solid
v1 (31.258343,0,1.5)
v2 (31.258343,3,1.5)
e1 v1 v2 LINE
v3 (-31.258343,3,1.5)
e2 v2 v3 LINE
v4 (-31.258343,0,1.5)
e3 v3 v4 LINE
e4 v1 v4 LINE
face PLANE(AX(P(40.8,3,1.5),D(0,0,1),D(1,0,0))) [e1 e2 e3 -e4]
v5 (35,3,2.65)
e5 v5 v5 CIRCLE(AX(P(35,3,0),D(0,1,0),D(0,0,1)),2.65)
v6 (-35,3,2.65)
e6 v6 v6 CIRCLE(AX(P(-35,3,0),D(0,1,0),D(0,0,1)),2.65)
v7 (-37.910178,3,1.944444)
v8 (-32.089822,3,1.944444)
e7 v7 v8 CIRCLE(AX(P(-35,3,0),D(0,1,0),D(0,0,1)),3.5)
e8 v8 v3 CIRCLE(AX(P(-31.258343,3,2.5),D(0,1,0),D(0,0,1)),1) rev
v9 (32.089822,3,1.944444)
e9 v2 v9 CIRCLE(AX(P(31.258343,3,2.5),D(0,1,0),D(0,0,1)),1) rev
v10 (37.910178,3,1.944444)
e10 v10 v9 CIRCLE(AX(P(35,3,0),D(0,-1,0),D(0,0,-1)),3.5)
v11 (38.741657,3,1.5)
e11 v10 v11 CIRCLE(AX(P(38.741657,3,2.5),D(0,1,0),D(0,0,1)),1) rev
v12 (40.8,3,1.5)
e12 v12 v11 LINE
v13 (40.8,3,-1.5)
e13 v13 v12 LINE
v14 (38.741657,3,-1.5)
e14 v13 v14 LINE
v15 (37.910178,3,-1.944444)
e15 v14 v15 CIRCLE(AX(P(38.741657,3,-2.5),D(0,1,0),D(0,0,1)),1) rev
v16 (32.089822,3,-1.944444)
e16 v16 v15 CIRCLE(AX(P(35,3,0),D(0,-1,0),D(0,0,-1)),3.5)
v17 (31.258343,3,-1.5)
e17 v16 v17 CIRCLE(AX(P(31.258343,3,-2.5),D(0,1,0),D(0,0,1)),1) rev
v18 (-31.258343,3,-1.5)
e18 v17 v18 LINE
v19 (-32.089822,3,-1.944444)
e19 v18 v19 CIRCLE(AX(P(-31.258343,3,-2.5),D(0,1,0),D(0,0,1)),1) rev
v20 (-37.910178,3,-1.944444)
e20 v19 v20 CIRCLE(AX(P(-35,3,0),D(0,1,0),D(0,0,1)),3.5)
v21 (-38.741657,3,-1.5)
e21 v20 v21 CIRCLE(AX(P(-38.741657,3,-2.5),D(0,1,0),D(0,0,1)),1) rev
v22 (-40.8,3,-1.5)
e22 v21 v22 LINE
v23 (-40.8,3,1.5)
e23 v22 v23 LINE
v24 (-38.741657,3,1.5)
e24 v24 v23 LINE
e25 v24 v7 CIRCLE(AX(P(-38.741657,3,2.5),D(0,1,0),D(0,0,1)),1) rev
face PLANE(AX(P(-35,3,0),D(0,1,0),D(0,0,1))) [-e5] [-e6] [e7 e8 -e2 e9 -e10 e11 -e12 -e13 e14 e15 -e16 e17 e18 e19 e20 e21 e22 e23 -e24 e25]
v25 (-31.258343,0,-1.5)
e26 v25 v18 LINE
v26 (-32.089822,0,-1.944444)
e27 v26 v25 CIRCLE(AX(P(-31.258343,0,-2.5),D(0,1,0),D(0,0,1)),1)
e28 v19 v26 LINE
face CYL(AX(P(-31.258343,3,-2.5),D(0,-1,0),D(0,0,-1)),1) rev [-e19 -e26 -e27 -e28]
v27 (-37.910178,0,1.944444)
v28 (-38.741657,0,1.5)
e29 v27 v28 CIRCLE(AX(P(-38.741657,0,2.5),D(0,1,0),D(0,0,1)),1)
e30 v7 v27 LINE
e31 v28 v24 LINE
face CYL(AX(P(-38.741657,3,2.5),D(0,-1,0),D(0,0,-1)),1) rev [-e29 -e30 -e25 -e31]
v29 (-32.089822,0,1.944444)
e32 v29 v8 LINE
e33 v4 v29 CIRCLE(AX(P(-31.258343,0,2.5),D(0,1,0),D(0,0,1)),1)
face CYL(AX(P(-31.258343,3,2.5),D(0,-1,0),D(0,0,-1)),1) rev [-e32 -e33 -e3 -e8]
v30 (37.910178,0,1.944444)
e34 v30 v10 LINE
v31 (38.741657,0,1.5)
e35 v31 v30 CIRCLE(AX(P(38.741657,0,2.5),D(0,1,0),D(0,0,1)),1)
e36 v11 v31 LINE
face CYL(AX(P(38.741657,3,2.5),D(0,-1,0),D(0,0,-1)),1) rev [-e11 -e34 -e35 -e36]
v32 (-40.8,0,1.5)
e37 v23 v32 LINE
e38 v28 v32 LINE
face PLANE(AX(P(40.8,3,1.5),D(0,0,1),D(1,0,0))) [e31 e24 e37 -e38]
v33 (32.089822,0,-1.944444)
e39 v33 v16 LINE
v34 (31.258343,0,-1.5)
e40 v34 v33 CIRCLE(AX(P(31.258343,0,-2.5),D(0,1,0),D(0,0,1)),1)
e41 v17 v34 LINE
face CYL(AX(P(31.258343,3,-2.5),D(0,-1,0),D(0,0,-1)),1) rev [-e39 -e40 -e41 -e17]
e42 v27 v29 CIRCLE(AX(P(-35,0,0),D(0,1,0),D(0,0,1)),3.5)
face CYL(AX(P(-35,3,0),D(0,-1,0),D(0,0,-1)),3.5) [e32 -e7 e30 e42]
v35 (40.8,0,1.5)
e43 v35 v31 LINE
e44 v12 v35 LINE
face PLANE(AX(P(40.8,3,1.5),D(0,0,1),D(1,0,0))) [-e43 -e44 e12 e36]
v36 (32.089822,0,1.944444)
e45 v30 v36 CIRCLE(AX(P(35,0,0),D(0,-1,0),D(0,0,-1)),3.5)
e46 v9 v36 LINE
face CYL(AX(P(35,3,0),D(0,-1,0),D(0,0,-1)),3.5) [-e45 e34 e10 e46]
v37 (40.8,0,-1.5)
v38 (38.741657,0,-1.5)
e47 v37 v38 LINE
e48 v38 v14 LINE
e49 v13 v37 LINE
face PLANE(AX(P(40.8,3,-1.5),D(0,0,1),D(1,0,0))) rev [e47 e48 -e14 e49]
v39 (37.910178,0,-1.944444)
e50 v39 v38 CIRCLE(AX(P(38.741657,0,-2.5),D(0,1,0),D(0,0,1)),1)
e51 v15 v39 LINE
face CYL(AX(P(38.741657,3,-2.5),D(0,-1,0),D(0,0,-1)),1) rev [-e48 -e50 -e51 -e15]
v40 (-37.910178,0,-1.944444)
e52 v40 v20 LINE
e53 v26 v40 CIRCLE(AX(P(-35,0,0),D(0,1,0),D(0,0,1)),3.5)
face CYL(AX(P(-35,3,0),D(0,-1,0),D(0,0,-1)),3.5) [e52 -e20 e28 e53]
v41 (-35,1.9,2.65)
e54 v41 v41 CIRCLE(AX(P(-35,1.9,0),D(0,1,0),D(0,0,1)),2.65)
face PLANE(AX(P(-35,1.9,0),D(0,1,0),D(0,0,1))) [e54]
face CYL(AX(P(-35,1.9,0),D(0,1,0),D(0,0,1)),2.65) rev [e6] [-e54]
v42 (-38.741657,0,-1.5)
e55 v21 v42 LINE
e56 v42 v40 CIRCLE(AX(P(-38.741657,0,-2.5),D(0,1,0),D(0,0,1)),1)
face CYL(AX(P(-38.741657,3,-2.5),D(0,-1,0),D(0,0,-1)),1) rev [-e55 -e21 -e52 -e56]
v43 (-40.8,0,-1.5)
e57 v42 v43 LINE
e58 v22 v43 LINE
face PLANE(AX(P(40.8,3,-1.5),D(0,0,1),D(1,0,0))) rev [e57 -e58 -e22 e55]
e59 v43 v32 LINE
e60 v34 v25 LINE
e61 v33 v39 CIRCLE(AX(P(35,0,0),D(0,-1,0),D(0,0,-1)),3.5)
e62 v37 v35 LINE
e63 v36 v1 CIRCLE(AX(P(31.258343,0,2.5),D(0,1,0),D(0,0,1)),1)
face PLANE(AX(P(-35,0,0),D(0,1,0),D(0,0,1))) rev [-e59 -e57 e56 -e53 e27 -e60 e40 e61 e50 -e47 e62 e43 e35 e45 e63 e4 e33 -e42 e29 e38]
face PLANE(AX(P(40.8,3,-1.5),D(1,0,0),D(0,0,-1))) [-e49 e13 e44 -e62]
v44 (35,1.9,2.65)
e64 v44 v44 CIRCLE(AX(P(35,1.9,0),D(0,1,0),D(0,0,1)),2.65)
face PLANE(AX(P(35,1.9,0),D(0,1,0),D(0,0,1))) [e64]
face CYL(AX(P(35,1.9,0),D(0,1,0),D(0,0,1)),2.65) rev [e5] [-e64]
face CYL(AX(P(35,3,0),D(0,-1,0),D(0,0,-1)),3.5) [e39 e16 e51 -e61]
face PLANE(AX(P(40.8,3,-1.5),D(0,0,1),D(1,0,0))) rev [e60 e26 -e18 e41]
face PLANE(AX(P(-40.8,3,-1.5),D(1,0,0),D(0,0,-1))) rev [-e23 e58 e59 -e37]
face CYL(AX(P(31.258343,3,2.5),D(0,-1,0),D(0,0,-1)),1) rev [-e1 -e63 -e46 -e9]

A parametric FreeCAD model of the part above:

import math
import FreeCAD as App
import Part
import Sketcher

V = App.Vector
Q = App.Units.Quantity


def edges_at(feature, points):
    """Names of the edges that pass closest to the given points."""
    edges = feature.Shape.Edges
    near = lambda p: min(range(len(edges)), key=lambda i: edges[i].distToShape(Part.Vertex(*p))[0])
    return sorted({f"Edge{near(p) + 1}" for p in points})

doc = App.newDocument("Part")
body = doc.addObject("PartDesign::Body", "Body")

# Sketch on XZ plane
sketch1 = doc.addObject("Sketcher::SketchObject", "Sketch")
body.addObject(sketch1)
sketch1.AttachmentSupport = (doc.XZ_Plane, [""])
sketch1.MapMode = "FlatFace"
sketch1.addGeometry(Part.LineSegment(V(-31.837722, 1.5, 0), V(31.837722, 1.5, 0)), False)
sketch1.addGeometry(Part.ArcOfCircle(Part.Circle(V(35, 0, 0), V(0, 0, 1), 3.5), math.radians(25.376934), math.radians(154.623066)), False)
sketch1.addGeometry(Part.LineSegment(V(38.162278, 1.5, 0), V(40.8, 1.5, 0)), False)
sketch1.addGeometry(Part.LineSegment(V(40.8, 1.5, 0), V(40.8, -1.5, 0)), False)
sketch1.addGeometry(Part.LineSegment(V(40.8, -1.5, 0), V(38.162278, -1.5, 0)), False)
sketch1.addGeometry(Part.ArcOfCircle(Part.Circle(V(35, 0, 0), V(0, 0, 1), 3.5), math.radians(-154.623066), math.radians(-25.376934)), False)
sketch1.addGeometry(Part.LineSegment(V(31.837722, -1.5, 0), V(-31.837722, -1.5, 0)), False)
sketch1.addGeometry(Part.ArcOfCircle(Part.Circle(V(-35, 0, 0), V(0, 0, 1), 3.5), math.radians(-154.623066), math.radians(-25.376934)), False)
sketch1.addGeometry(Part.LineSegment(V(-38.162278, -1.5, 0), V(-40.8, -1.5, 0)), False)
sketch1.addGeometry(Part.LineSegment(V(-40.8, -1.5, 0), V(-40.8, 1.5, 0)), False)
sketch1.addGeometry(Part.LineSegment(V(-40.8, 1.5, 0), V(-38.162278, 1.5, 0)), False)
sketch1.addGeometry(Part.ArcOfCircle(Part.Circle(V(-35, 0, 0), V(0, 0, 1), 3.5), math.radians(25.376934), math.radians(154.623066)), False)
sketch1.addConstraint(Sketcher.Constraint("Coincident", 0, 2, 1, 2))
sketch1.addConstraint(Sketcher.Constraint("Coincident", 1, 1, 2, 1))
sketch1.addConstraint(Sketcher.Constraint("Coincident", 2, 2, 3, 1))
sketch1.addConstraint(Sketcher.Constraint("Coincident", 3, 2, 4, 1))
sketch1.addConstraint(Sketcher.Constraint("Coincident", 4, 2, 5, 2))
sketch1.addConstraint(Sketcher.Constraint("Coincident", 5, 1, 6, 1))
sketch1.addConstraint(Sketcher.Constraint("Coincident", 6, 2, 7, 2))
sketch1.addConstraint(Sketcher.Constraint("Coincident", 7, 1, 8, 1))
sketch1.addConstraint(Sketcher.Constraint("Coincident", 8, 2, 9, 1))
sketch1.addConstraint(Sketcher.Constraint("Coincident", 9, 2, 10, 1))
sketch1.addConstraint(Sketcher.Constraint("Coincident", 10, 2, 11, 2))
sketch1.addConstraint(Sketcher.Constraint("Coincident", 11, 1, 0, 1))
sketch1.addConstraint(Sketcher.Constraint("Horizontal", 0))
sketch1.addConstraint(Sketcher.Constraint("Horizontal", 2))
sketch1.addConstraint(Sketcher.Constraint("Vertical", 3))
sketch1.addConstraint(Sketcher.Constraint("Horizontal", 4))
sketch1.addConstraint(Sketcher.Constraint("Horizontal", 6))
sketch1.addConstraint(Sketcher.Constraint("Horizontal", 8))
sketch1.addConstraint(Sketcher.Constraint("Vertical", 9))
sketch1.addConstraint(Sketcher.Constraint("Horizontal", 10))
sketch1.addConstraint(Sketcher.Constraint("Coincident", 5, 3, 1, 3))
sketch1.addConstraint(Sketcher.Constraint("Coincident", 11, 3, 7, 3))
sketch1.addConstraint(Sketcher.Constraint("Equal", 1, 5))
sketch1.addConstraint(Sketcher.Constraint("Equal", 5, 7))
sketch1.addConstraint(Sketcher.Constraint("Equal", 7, 11))
sketch1.addConstraint(Sketcher.Constraint("Symmetric", 1, 3, 7, 3, -1, 1))
sketch1.addConstraint(Sketcher.Constraint("Symmetric", 2, 2, 8, 2, -1, 1))
sketch1.addConstraint(Sketcher.Constraint("Symmetric", 4, 2, 7, 1, -2))
sketch1.addConstraint(Sketcher.Constraint("Horizontal", 0, 2, 1, 1))
sketch1.addConstraint(Sketcher.Constraint("Horizontal", 4, 2, 5, 1))
sketch1.addConstraint(Sketcher.Constraint("Horizontal", 2, 2, 9, 2))
sketch1.addConstraint(Sketcher.Constraint("Radius", 1, Q("3.5 mm")))
sketch1.addConstraint(Sketcher.Constraint("DistanceY", 3, 2, 3, 1, Q("3 mm")))
sketch1.addConstraint(Sketcher.Constraint("DistanceX", -1, 1, 1, 3, Q("35 mm")))
sketch1.addConstraint(Sketcher.Constraint("DistanceX", -1, 1, 2, 2, Q("40.8 mm")))
pad1 = doc.addObject("PartDesign::Pad", "Pad")
body.addObject(pad1)
pad1.Profile = sketch1
pad1.Length = 3
pad1.Reversed = True

# Sketch on XZ plane
sketch2 = doc.addObject("Sketcher::SketchObject", "Sketch001")
body.addObject(sketch2)
sketch2.AttachmentSupport = (doc.XZ_Plane, [""])
sketch2.MapMode = "FlatFace"
sketch2.AttachmentOffset = App.Placement(V(0, 0, -3), App.Rotation())
sketch2.addGeometry(Part.Circle(V(-35, 0, 0), V(0, 0, 1), 2.65), False)
sketch2.addGeometry(Part.Circle(V(35, 0, 0), V(0, 0, 1), 2.65), False)
sketch2.addConstraint(Sketcher.Constraint("Equal", 0, 1))
sketch2.addConstraint(Sketcher.Constraint("Symmetric", 0, 3, 1, 3, -1, 1))
sketch2.addConstraint(Sketcher.Constraint("PointOnObject", 0, 3, -1))
sketch2.addConstraint(Sketcher.Constraint("Diameter", 0, Q("5.3 mm")))
sketch2.addConstraint(Sketcher.Constraint("DistanceX", 0, 3, -1, 1, Q("35 mm")))
pocket1 = doc.addObject("PartDesign::Pocket", "Pocket")
body.addObject(pocket1)
pocket1.Profile = sketch2
pocket1.Length = 1.1
pocket1.Reversed = True
doc.recompute()

fillet = doc.addObject("PartDesign::Fillet", "Fillet")
body.addObject(fillet)
fillet.Base = (pocket1, edges_at(pocket1, [
    (-38.162, 1.5, -1.5),
    (31.838, 1.5, -1.5),
    (38.162, 1.5, -1.5),
    (31.838, 1.5, 1.5),
    (38.162, 1.5, 1.5),
    (-31.838, 1.5, 1.5),
    (-38.162, 1.5, 1.5),
    (-31.838, 1.5, -1.5),
]))
fillet.Radius = 1

doc.recompute()
